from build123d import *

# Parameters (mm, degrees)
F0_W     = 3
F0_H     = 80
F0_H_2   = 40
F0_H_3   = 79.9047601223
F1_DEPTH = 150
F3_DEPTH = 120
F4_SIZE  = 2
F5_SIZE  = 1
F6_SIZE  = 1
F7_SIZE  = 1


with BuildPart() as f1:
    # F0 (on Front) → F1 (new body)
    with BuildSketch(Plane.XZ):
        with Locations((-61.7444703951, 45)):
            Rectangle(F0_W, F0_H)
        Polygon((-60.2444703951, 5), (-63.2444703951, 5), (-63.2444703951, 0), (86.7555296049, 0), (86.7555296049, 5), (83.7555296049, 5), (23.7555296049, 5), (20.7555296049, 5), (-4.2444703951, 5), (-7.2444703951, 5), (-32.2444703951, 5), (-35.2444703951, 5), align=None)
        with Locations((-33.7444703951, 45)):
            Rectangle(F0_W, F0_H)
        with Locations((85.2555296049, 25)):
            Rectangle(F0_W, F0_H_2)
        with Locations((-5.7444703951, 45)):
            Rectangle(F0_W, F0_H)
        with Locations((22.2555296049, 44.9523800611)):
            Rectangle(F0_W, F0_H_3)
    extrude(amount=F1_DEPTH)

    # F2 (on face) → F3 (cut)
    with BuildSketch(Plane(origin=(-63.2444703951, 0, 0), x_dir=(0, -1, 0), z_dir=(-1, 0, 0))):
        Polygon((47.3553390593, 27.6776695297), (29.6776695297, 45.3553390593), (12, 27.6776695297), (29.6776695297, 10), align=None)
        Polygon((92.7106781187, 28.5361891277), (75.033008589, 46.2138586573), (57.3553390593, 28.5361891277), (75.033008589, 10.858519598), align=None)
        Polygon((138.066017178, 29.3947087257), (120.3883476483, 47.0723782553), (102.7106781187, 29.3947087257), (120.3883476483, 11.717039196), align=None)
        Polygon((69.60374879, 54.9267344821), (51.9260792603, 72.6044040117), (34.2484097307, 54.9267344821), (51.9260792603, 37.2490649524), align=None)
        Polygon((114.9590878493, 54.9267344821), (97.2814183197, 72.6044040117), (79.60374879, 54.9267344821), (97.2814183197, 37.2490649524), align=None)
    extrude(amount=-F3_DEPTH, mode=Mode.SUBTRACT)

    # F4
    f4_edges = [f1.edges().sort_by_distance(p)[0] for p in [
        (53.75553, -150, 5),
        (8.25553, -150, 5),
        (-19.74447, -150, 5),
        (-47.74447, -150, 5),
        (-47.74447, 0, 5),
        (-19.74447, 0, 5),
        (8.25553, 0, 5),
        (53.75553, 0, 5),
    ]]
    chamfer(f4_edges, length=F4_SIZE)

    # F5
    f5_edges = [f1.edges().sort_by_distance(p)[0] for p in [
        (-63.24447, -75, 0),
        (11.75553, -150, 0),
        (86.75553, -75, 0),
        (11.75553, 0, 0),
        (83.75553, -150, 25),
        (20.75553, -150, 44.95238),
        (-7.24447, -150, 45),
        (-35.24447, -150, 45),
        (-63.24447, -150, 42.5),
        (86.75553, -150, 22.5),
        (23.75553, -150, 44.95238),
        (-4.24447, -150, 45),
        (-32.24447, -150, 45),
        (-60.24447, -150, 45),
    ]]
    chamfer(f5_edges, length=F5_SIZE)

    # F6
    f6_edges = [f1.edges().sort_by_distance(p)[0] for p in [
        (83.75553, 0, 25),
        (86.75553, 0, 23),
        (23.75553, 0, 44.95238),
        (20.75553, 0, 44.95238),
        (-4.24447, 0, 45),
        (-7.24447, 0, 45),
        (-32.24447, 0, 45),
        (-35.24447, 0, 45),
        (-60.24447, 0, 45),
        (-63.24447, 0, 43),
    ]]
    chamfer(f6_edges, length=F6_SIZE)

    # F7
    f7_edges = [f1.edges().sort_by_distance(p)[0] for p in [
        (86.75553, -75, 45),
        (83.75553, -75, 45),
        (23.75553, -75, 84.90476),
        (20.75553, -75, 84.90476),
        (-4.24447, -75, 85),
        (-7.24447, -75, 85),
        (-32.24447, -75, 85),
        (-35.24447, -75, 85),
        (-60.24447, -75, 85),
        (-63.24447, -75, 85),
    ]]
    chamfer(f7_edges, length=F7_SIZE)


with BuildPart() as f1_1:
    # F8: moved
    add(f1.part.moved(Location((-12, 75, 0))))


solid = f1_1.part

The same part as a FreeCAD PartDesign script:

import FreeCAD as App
import Part
import Sketcher

V = App.Vector
Q = App.Units.Quantity


def edges_at(feature, points):
    """Names of the edges that pass closest to the given points."""
    edges = feature.Shape.Edges
    near = lambda p: min(range(len(edges)), key=lambda i: edges[i].distToShape(Part.Vertex(*p))[0])
    return sorted({f"Edge{near(p) + 1}" for p in points})

doc = App.newDocument("Part")
body = doc.addObject("PartDesign::Body", "Body")

sketch1 = body.newObject("Sketcher::SketchObject", "Sketch")
sketch1.AttachmentSupport = (doc.getObject("XZ_Plane"), [""])
sketch1.MapMode = "FlatFace"
sketch1.addGeometry(Part.LineSegment(V(-63.2, 85, 0), V(-63.2, 0, 0)), False)
sketch1.addGeometry(Part.LineSegment(V(-63.2, 0, 0), V(86.8, 0, 0)), False)
sketch1.addGeometry(Part.LineSegment(V(86.8, 0, 0), V(86.8, 45, 0)), False)
sketch1.addGeometry(Part.LineSegment(V(86.8, 45, 0), V(83.8, 45, 0)), False)
sketch1.addGeometry(Part.LineSegment(V(83.8, 45, 0), V(83.8, 5, 0)), False)
sketch1.addGeometry(Part.LineSegment(V(83.8, 5, 0), V(23.8, 5, 0)), False)
sketch1.addGeometry(Part.LineSegment(V(23.8, 5, 0), V(23.8, 84.9, 0)), False)
sketch1.addGeometry(Part.LineSegment(V(23.8, 84.9, 0), V(20.8, 84.9, 0)), False)
sketch1.addGeometry(Part.LineSegment(V(20.8, 84.9, 0), V(20.8, 5, 0)), False)
sketch1.addGeometry(Part.LineSegment(V(20.8, 5, 0), V(-4.2, 5, 0)), False)
sketch1.addGeometry(Part.LineSegment(V(-4.2, 5, 0), V(-4.2, 85, 0)), False)
sketch1.addGeometry(Part.LineSegment(V(-4.2, 85, 0), V(-7.2, 85, 0)), False)
sketch1.addGeometry(Part.LineSegment(V(-7.2, 85, 0), V(-7.2, 5, 0)), False)
sketch1.addGeometry(Part.LineSegment(V(-7.2, 5, 0), V(-32.2, 5, 0)), False)
sketch1.addGeometry(Part.LineSegment(V(-32.2, 5, 0), V(-32.2, 85, 0)), False)
sketch1.addGeometry(Part.LineSegment(V(-32.2, 85, 0), V(-35.2, 85, 0)), False)
sketch1.addGeometry(Part.LineSegment(V(-35.2, 85, 0), V(-35.2, 5, 0)), False)
sketch1.addGeometry(Part.LineSegment(V(-35.2, 5, 0), V(-60.2, 5, 0)), False)
sketch1.addGeometry(Part.LineSegment(V(-60.2, 5, 0), V(-60.2, 85, 0)), False)
sketch1.addGeometry(Part.LineSegment(V(-60.2, 85, 0), V(-63.2, 85, 0)), False)
sketch1.addConstraint(Sketcher.Constraint("Coincident", 0, 2, 1, 1))
sketch1.addConstraint(Sketcher.Constraint("Coincident", 1, 2, 2, 1))
sketch1.addConstraint(Sketcher.Constraint("Coincident", 2, 2, 3, 1))
sketch1.addConstraint(Sketcher.Constraint("Coincident", 3, 2, 4, 1))
sketch1.addConstraint(Sketcher.Constraint("Coincident", 4, 2, 5, 1))
sketch1.addConstraint(Sketcher.Constraint("Coincident", 5, 2, 6, 1))
sketch1.addConstraint(Sketcher.Constraint("Coincident", 6, 2, 7, 1))
sketch1.addConstraint(Sketcher.Constraint("Coincident", 7, 2, 8, 1))
sketch1.addConstraint(Sketcher.Constraint("Coincident", 8, 2, 9, 1))
sketch1.addConstraint(Sketcher.Constraint("Coincident", 9, 2, 10, 1))
sketch1.addConstraint(Sketcher.Constraint("Coincident", 10, 2, 11, 1))
sketch1.addConstraint(Sketcher.Constraint("Coincident", 11, 2, 12, 1))
sketch1.addConstraint(Sketcher.Constraint("Coincident", 12, 2, 13, 1))
sketch1.addConstraint(Sketcher.Constraint("Coincident", 13, 2, 14, 1))
sketch1.addConstraint(Sketcher.Constraint("Coincident", 14, 2, 15, 1))
sketch1.addConstraint(Sketcher.Constraint("Coincident", 15, 2, 16, 1))
sketch1.addConstraint(Sketcher.Constraint("Coincident", 16, 2, 17, 1))
sketch1.addConstraint(Sketcher.Constraint("Coincident", 17, 2, 18, 1))
sketch1.addConstraint(Sketcher.Constraint("Coincident", 18, 2, 19, 1))
sketch1.addConstraint(Sketcher.Constraint("Coincident", 19, 2, 0, 1))
sketch1.addConstraint(Sketcher.Constraint("Vertical", 0))
sketch1.addConstraint(Sketcher.Constraint("Horizontal", 1))
sketch1.addConstraint(Sketcher.Constraint("Vertical", 2))
sketch1.addConstraint(Sketcher.Constraint("Horizontal", 3))
sketch1.addConstraint(Sketcher.Constraint("Vertical", 4))
sketch1.addConstraint(Sketcher.Constraint("Horizontal", 5))
sketch1.addConstraint(Sketcher.Constraint("Vertical", 6))
sketch1.addConstraint(Sketcher.Constraint("Horizontal", 7))
sketch1.addConstraint(Sketcher.Constraint("Vertical", 8))
sketch1.addConstraint(Sketcher.Constraint("Horizontal", 9))
sketch1.addConstraint(Sketcher.Constraint("Vertical", 10))
sketch1.addConstraint(Sketcher.Constraint("Horizontal", 11))
sketch1.addConstraint(Sketcher.Constraint("Vertical", 12))
sketch1.addConstraint(Sketcher.Constraint("Horizontal", 13))
sketch1.addConstraint(Sketcher.Constraint("Vertical", 14))
sketch1.addConstraint(Sketcher.Constraint("Horizontal", 15))
sketch1.addConstraint(Sketcher.Constraint("Vertical", 16))
sketch1.addConstraint(Sketcher.Constraint("Horizontal", 17))
sketch1.addConstraint(Sketcher.Constraint("Vertical", 18))
sketch1.addConstraint(Sketcher.Constraint("Horizontal", 19))
sketch1.addConstraint(Sketcher.Constraint("PointOnObject", 0, 2, -1))
sketch1.addConstraint(Sketcher.Constraint("Horizontal", 5, 2, 8, 2))
sketch1.addConstraint(Sketcher.Constraint("Horizontal", 9, 2, 12, 2))
sketch1.addConstraint(Sketcher.Constraint("Horizontal", 11, 2, 14, 2))
sketch1.addConstraint(Sketcher.Constraint("Horizontal", 13, 2, 16, 2))
sketch1.addConstraint(Sketcher.Constraint("Horizontal", 15, 2, 18, 2))
sketch1.addConstraint(Sketcher.Constraint("Equal", 3, 7))
sketch1.addConstraint(Sketcher.Constraint("Equal", 7, 11))
sketch1.addConstraint(Sketcher.Constraint("Equal", 9, 13))
sketch1.addConstraint(Sketcher.Constraint("Equal", 11, 15))
sketch1.addConstraint(Sketcher.Constraint("Equal", 13, 17))
sketch1.addConstraint(Sketcher.Constraint("Equal", 15, 19))
sketch1.addConstraint(Sketcher.Constraint("DistanceX", 1, 1, 1, 2, Q("150 mm")))
sketch1.addConstraint(Sketcher.Constraint("DistanceX", 3, 2, 3, 1, Q("3 mm")))
sketch1.addConstraint(Sketcher.Constraint("DistanceX", 5, 2, 5, 1, Q("60 mm")))
sketch1.addConstraint(Sketcher.Constraint("DistanceY", 0, 2, 0, 1, Q("85 mm")))
sketch1.addConstraint(Sketcher.Constraint("DistanceY", 2, 1, 2, 2, Q("45 mm")))
sketch1.addConstraint(Sketcher.Constraint("DistanceY", 4, 2, 4, 1, Q("40 mm")))
sketch1.addConstraint(Sketcher.Constraint("DistanceY", 6, 1, 6, 2, Q("79.90476 mm")))
sketch1.addConstraint(Sketcher.Constraint("DistanceX", 0, 2, -1, 1, Q("63.24447 mm")))
pad1 = body.newObject("PartDesign::Pad", "Pad")
pad1.Profile = sketch1
pad1.Length = 150

sketch2 = body.newObject("Sketcher::SketchObject", "Sketch001")
sketch2.AttachmentSupport = (doc.getObject("YZ_Plane"), [""])
sketch2.MapMode = "FlatFace"
sketch2.AttachmentOffset = App.Placement(V(0, 0, -63.24447), App.Rotation())
sketch2.addGeometry(Part.LineSegment(V(-47, 28, 0), V(-30, 45, 0)), False)
sketch2.addGeometry(Part.LineSegment(V(-30, 45, 0), V(-12, 28, 0)), False)
sketch2.addGeometry(Part.LineSegment(V(-12, 28, 0), V(-30, 10, 0)), False)
sketch2.addGeometry(Part.LineSegment(V(-30, 10, 0), V(-47, 28, 0)), False)
sketch2.addGeometry(Part.LineSegment(V(-93, 29, 0), V(-75, 46, 0)), False)
sketch2.addGeometry(Part.LineSegment(V(-75, 46, 0), V(-57, 29, 0)), False)
sketch2.addGeometry(Part.LineSegment(V(-57, 29, 0), V(-75, 11, 0)), False)
sketch2.addGeometry(Part.LineSegment(V(-75, 11, 0), V(-93, 29, 0)), False)
sketch2.addGeometry(Part.LineSegment(V(-138, 29, 0), V(-120, 47, 0)), False)
sketch2.addGeometry(Part.LineSegment(V(-120, 47, 0), V(-103, 29, 0)), False)
sketch2.addGeometry(Part.LineSegment(V(-103, 29, 0), V(-120, 12, 0)), False)
sketch2.addGeometry(Part.LineSegment(V(-120, 12, 0), V(-138, 29, 0)), False)
sketch2.addGeometry(Part.LineSegment(V(-70, 55, 0), V(-52, 73, 0)), False)
sketch2.addGeometry(Part.LineSegment(V(-52, 73, 0), V(-34, 55, 0)), False)
sketch2.addGeometry(Part.LineSegment(V(-34, 55, 0), V(-52, 37, 0)), False)
sketch2.addGeometry(Part.LineSegment(V(-52, 37, 0), V(-70, 55, 0)), False)
sketch2.addGeometry(Part.LineSegment(V(-115, 55, 0), V(-97, 73, 0)), False)
sketch2.addGeometry(Part.LineSegment(V(-97, 73, 0), V(-80, 55, 0)), False)
sketch2.addGeometry(Part.LineSegment(V(-80, 55, 0), V(-97, 37, 0)), False)
sketch2.addGeometry(Part.LineSegment(V(-97, 37, 0), V(-115, 55, 0)), False)
sketch2.addConstraint(Sketcher.Constraint("Coincident", 0, 2, 1, 1))
sketch2.addConstraint(Sketcher.Constraint("Coincident", 1, 2, 2, 1))
sketch2.addConstraint(Sketcher.Constraint("Coincident", 2, 2, 3, 1))
sketch2.addConstraint(Sketcher.Constraint("Coincident", 3, 2, 0, 1))
sketch2.addConstraint(Sketcher.Constraint("Coincident", 4, 2, 5, 1))
sketch2.addConstraint(Sketcher.Constraint("Coincident", 5, 2, 6, 1))
sketch2.addConstraint(Sketcher.Constraint("Coincident", 6, 2, 7, 1))
sketch2.addConstraint(Sketcher.Constraint("Coincident", 7, 2, 4, 1))
sketch2.addConstraint(Sketcher.Constraint("Coincident", 8, 2, 9, 1))
sketch2.addConstraint(Sketcher.Constraint("Coincident", 9, 2, 10, 1))
sketch2.addConstraint(Sketcher.Constraint("Coincident", 10, 2, 11, 1))
sketch2.addConstraint(Sketcher.Constraint("Coincident", 11, 2, 8, 1))
sketch2.addConstraint(Sketcher.Constraint("Coincident", 12, 2, 13, 1))
sketch2.addConstraint(Sketcher.Constraint("Coincident", 13, 2, 14, 1))
sketch2.addConstraint(Sketcher.Constraint("Coincident", 14, 2, 15, 1))
sketch2.addConstraint(Sketcher.Constraint("Coincident", 15, 2, 12, 1))
sketch2.addConstraint(Sketcher.Constraint("Coincident", 16, 2, 17, 1))
sketch2.addConstraint(Sketcher.Constraint("Coincident", 17, 2, 18, 1))
sketch2.addConstraint(Sketcher.Constraint("Coincident", 18, 2, 19, 1))
sketch2.addConstraint(Sketcher.Constraint("Coincident", 19, 2, 16, 1))
sketch2.addConstraint(Sketcher.Constraint("Perpendicular", 0, 1))
sketch2.addConstraint(Sketcher.Constraint("Perpendicular", 1, 2))
sketch2.addConstraint(Sketcher.Constraint("Perpendicular", 2, 3))
sketch2.addConstraint(Sketcher.Constraint("Perpendicular", 3, 4))
sketch2.addConstraint(Sketcher.Constraint("Perpendicular", 4, 5))
sketch2.addConstraint(Sketcher.Constraint("Perpendicular", 5, 6))
sketch2.addConstraint(Sketcher.Constraint("Perpendicular", 6, 7))
sketch2.addConstraint(Sketcher.Constraint("Perpendicular", 7, 8))
sketch2.addConstraint(Sketcher.Constraint("Perpendicular", 8, 9))
sketch2.addConstraint(Sketcher.Constraint("Perpendicular", 9, 10))
sketch2.addConstraint(Sketcher.Constraint("Perpendicular", 10, 11))
sketch2.addConstraint(Sketcher.Constraint("Perpendicular", 11, 12))
sketch2.addConstraint(Sketcher.Constraint("Perpendicular", 12, 13))
sketch2.addConstraint(Sketcher.Constraint("Perpendicular", 13, 14))
sketch2.addConstraint(Sketcher.Constraint("Perpendicular", 14, 15))
sketch2.addConstraint(Sketcher.Constraint("Perpendicular", 15, 16))
sketch2.addConstraint(Sketcher.Constraint("Perpendicular", 16, 17))
sketch2.addConstraint(Sketcher.Constraint("Perpendicular", 17, 18))
sketch2.addConstraint(Sketcher.Constraint("Perpendicular", 18, 19))
sketch2.addConstraint(Sketcher.Constraint("Horizontal", 1, 2, 3, 2))
sketch2.addConstraint(Sketcher.Constraint("Horizontal", 5, 2, 7, 2))
sketch2.addConstraint(Sketcher.Constraint("Horizontal", 9, 2, 11, 2))
sketch2.addConstraint(Sketcher.Constraint("Horizontal", 13, 2, 15, 2))
sketch2.addConstraint(Sketcher.Constraint("Horizontal", 12, 2, 16, 2))
sketch2.addConstraint(Sketcher.Constraint("Horizontal", 15, 2, 17, 2))
sketch2.addConstraint(Sketcher.Constraint("Horizontal", 14, 2, 18, 2))
sketch2.addConstraint(Sketcher.Constraint("Vertical", 0, 2, 2, 2))
sketch2.addConstraint(Sketcher.Constraint("Equal", 3, 4))
sketch2.addConstraint(Sketcher.Constraint("Equal", 7, 8))
sketch2.addConstraint(Sketcher.Constraint("Equal", 11, 12))
sketch2.addConstraint(Sketcher.Constraint("Distance", 0, Q("25 mm")))
sketch2.addConstraint(Sketcher.Constraint("DistanceX", 1, 2, -1, 1, Q("12 mm")))
sketch2.addConstraint(Sketcher.Constraint("DistanceY", -1, 1, 2, 2, Q("10 mm")))
sketch2.addConstraint(Sketcher.Constraint("DistanceX", 5, 2, 3, 2, Q("10 mm")))
sketch2.addConstraint(Sketcher.Constraint("DistanceX", 9, 2, 7, 2, Q("10 mm")))
sketch2.addConstraint(Sketcher.Constraint("DistanceX", 17, 2, 15, 2, Q("10 mm")))
sketch2.addConstraint(Sketcher.Constraint("DistanceX", 7, 2, 12, 2, Q("40.784599 mm")))
sketch2.addConstraint(Sketcher.Constraint("DistanceY", -1, 1, 4, 2, Q("46.213859 mm")))
sketch2.addConstraint(Sketcher.Constraint("DistanceY", -1, 1, 8, 2, Q("47.072378 mm")))
sketch2.addConstraint(Sketcher.Constraint("DistanceY", -1, 1, 12, 2, Q("72.604404 mm")))
pocket1 = body.newObject("PartDesign::Pocket", "Pocket")
pocket1.Profile = sketch2
pocket1.Length = 120
pocket1.Reversed = True
doc.recompute()

chamfer = body.newObject("PartDesign::Chamfer", "Chamfer")
chamfer.Base = (pocket1, edges_at(pocket1, [
    (53.756, -150, 5),
    (8.256, -150, 5),
    (-19.744, -150, 5),
    (-47.744, -150, 5),
    (-47.744, 0, 5),
    (-19.744, 0, 5),
    (8.256, 0, 5),
    (53.756, 0, 5),
]))
chamfer.Size = 2
doc.recompute()

chamfer2 = body.newObject("PartDesign::Chamfer", "Chamfer001")
chamfer2.Base = (chamfer, edges_at(chamfer, [
    (-63.244, -75, 0),
    (11.756, -150, 0),
    (86.756, -75, 0),
    (11.756, 0, 0),
    (83.756, -150, 24),
    (20.756, -150, 43.952),
    (-7.244, -150, 44),
    (-35.244, -150, 44),
    (-63.244, -150, 42.5),
    (86.756, -150, 22.5),
    (23.756, -150, 43.952),
    (-4.244, -150, 44),
    (-32.244, -150, 44),
    (-60.244, -150, 44),
]))
chamfer2.Size = 1
doc.recompute()

chamfer3 = body.newObject("PartDesign::Chamfer", "Chamfer002")
chamfer3.Base = (chamfer2, edges_at(chamfer2, [
    (83.756, 0, 24),
    (86.756, 0, 23),
    (23.756, 0, 43.952),
    (20.756, 0, 43.952),
    (-4.244, 0, 44),
    (-7.244, 0, 44),
    (-32.244, 0, 44),
    (-35.244, 0, 44),
    (-60.244, 0, 44),
    (-63.244, 0, 43),
]))
chamfer3.Size = 1
doc.recompute()

chamfer4 = body.newObject("PartDesign::Chamfer", "Chamfer003")
chamfer4.Base = (chamfer3, edges_at(chamfer3, [
    (86.756, -75, 45),
    (83.756, -75, 45),
    (23.756, -75, 84.905),
    (20.756, -75, 84.905),
    (-4.244, -75, 85),
    (-7.244, -75, 85),
    (-32.244, -75, 85),
    (-35.244, -75, 85),
    (-60.244, -75, 85),
    (-63.244, -75, 85),
]))
chamfer4.Size = 1
body2 = doc.addObject("PartDesign::Body", "Body001")
doc.recompute()

body.Placement = App.Placement(V(-12, 75, 0), App.Rotation(V(0, 0, 1), 0))
boolean = body2.newObject("PartDesign::Boolean", "Boolean")
boolean.Type = "Fuse"
boolean.addObjects([body])

doc.recompute()
